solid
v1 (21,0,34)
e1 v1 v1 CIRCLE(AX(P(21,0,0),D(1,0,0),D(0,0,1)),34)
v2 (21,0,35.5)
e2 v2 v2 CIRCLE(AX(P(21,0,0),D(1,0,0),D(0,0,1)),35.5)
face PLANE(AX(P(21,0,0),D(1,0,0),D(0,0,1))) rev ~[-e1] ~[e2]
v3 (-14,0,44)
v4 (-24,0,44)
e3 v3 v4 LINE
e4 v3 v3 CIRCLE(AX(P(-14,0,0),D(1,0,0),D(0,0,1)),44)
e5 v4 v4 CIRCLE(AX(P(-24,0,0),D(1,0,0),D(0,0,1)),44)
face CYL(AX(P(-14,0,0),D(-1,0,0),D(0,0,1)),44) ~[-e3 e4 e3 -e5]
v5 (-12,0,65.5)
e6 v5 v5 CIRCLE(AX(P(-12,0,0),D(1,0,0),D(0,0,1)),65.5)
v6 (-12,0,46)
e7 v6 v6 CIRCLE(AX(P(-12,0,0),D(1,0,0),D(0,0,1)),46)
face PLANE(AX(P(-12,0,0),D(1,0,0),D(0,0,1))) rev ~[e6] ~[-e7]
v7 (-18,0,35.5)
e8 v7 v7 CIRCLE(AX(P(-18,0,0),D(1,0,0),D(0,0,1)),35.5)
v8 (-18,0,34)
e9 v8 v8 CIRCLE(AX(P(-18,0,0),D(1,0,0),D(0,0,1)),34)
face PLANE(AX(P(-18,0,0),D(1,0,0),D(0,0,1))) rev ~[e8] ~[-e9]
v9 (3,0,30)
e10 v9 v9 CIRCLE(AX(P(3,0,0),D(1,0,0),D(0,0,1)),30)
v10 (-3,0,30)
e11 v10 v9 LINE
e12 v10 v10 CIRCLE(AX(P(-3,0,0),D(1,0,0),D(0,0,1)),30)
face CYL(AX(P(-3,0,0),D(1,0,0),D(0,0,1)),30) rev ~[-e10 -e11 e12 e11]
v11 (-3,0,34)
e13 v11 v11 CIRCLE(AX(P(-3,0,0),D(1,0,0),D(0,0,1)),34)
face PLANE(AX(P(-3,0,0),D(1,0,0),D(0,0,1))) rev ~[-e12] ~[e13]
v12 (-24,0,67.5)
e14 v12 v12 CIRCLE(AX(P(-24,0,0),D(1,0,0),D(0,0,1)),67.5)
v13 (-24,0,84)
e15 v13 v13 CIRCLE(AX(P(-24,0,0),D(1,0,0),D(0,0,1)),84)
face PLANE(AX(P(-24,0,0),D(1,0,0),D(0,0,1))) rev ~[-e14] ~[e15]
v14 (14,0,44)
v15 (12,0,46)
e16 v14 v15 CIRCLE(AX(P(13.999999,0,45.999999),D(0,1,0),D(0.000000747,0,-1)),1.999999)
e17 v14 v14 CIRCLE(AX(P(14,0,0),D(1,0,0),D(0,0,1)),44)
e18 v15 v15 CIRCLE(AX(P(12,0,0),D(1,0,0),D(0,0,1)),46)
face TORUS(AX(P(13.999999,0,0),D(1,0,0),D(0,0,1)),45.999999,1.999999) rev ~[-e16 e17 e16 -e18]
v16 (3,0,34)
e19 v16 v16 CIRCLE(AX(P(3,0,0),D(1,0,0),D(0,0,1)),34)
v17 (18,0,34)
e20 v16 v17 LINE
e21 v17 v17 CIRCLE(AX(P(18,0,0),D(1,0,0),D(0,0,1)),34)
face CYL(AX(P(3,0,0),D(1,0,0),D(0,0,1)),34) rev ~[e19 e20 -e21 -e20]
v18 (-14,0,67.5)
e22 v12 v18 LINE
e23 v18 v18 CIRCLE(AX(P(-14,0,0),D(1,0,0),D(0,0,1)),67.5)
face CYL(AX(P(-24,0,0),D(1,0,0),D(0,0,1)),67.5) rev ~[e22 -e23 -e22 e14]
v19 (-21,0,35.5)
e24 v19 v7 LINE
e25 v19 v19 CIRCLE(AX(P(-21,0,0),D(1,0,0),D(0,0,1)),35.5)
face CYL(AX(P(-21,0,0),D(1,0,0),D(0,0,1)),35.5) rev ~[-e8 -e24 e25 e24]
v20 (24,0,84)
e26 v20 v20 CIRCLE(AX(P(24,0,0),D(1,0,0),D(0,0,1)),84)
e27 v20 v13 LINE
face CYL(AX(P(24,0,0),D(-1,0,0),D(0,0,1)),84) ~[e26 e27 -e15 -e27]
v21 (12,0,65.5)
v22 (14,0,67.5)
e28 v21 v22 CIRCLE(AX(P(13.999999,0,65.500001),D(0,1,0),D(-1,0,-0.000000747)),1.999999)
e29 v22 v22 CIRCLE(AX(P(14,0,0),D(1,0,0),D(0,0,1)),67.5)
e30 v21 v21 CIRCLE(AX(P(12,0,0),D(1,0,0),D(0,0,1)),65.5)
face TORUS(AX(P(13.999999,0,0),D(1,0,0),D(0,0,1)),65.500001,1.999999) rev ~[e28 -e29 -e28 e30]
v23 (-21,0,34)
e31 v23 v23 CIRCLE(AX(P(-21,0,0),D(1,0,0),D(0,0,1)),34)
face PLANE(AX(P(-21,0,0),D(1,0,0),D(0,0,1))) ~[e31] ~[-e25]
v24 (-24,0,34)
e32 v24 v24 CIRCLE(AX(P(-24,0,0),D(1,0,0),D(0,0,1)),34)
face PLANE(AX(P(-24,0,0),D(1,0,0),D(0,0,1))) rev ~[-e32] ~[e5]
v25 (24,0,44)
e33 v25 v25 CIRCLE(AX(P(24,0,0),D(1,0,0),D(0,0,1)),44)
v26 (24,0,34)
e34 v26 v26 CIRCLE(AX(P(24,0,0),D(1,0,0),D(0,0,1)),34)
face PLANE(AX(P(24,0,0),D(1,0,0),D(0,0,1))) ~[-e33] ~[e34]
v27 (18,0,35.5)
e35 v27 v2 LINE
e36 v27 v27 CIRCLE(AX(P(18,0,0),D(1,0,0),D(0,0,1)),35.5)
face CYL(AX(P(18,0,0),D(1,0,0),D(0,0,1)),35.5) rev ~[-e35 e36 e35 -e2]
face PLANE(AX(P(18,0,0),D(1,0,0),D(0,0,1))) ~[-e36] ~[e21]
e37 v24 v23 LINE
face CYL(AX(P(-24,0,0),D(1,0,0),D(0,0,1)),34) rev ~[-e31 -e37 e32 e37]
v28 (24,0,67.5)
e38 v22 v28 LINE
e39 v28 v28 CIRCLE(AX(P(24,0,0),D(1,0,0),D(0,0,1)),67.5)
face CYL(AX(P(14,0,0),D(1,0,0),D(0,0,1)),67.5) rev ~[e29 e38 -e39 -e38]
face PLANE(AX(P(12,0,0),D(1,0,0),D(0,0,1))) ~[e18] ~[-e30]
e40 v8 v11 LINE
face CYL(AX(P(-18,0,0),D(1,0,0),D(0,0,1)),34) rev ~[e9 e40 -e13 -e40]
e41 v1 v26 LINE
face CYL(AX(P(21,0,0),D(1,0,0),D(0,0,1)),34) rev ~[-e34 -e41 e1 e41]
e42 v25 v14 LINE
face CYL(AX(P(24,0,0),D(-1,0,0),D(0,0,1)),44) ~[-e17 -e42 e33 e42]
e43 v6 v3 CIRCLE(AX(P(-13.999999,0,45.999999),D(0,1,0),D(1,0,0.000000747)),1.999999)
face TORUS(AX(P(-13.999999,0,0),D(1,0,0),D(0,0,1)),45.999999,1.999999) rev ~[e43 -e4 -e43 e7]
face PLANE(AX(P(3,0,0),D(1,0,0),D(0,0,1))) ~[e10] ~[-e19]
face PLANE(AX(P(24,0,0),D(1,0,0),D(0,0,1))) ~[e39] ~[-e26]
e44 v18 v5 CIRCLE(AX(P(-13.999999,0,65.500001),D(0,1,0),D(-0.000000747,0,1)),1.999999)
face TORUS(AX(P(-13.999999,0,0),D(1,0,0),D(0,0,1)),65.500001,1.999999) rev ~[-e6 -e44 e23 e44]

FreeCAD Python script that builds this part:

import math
import FreeCAD as App
import Part
import Sketcher
Q = App.Units.Quantity

doc = App.newDocument("Part")
params = doc.addObject("Spreadsheet::Sheet", "Params")
for row, (alias, value) in enumerate([
    ("sketch1_radius", "1.999999 mm"),
    ("sketch1_width", "48 mm"),
    ("sketch1_width2", "10 mm"),
    ("sketch1_width3", "3 mm"),
    ("sketch1_width4", "15 mm"),
    ("revolution_angle", "360 deg"),
], start=1):
    params.set(f"A{row}", alias)
    params.set(f"B{row}", "=" + value)
    params.setAlias(f"B{row}", alias)

body = doc.addObject("PartDesign::Body", "Body")

sketch1 = doc.addObject("Sketcher::SketchObject", "Sketch")
body.addObject(sketch1)
sketch1.AttachmentSupport = (doc.XZ_Plane, [""])
sketch1.MapMode = "FlatFace"
sketch1.addGeometry([
    Part.LineSegment(App.Vector(24, 84, 0), App.Vector(-24, 84, 0)),
    Part.LineSegment(App.Vector(-24, 84, 0), App.Vector(-24, 67.5, 0)),
    Part.LineSegment(App.Vector(-24, 67.5, 0), App.Vector(-14, 67.5, 0)),
    Part.ArcOfCircle(Part.Circle(App.Vector(-14, 65.5, 0), App.Vector(0, 0, 1), 2), math.radians(0), math.radians(90)),
    Part.LineSegment(App.Vector(-12, 65.5, 0), App.Vector(-12, 46, 0)),
    Part.ArcOfCircle(Part.Circle(App.Vector(-14, 46, 0), App.Vector(0, 0, 1), 2), math.radians(-90), math.radians(0)),
    Part.LineSegment(App.Vector(-14, 44, 0), App.Vector(-24, 44, 0)),
    Part.LineSegment(App.Vector(-24, 44, 0), App.Vector(-24, 34, 0)),
    Part.LineSegment(App.Vector(-24, 34, 0), App.Vector(-21, 34, 0)),
    Part.LineSegment(App.Vector(-21, 34, 0), App.Vector(-21, 35.5, 0)),
    Part.LineSegment(App.Vector(-21, 35.5, 0), App.Vector(-18, 35.5, 0)),
    Part.LineSegment(App.Vector(-18, 35.5, 0), App.Vector(-18, 34, 0)),
    Part.LineSegment(App.Vector(-18, 34, 0), App.Vector(-3, 34, 0)),
    Part.LineSegment(App.Vector(-3, 34, 0), App.Vector(-3, 30, 0)),
    Part.LineSegment(App.Vector(-3, 30, 0), App.Vector(3, 30, 0)),
    Part.LineSegment(App.Vector(3, 30, 0), App.Vector(3, 34, 0)),
    Part.LineSegment(App.Vector(3, 34, 0), App.Vector(18, 34, 0)),
    Part.LineSegment(App.Vector(18, 34, 0), App.Vector(18, 35.5, 0)),
    Part.LineSegment(App.Vector(18, 35.5, 0), App.Vector(21, 35.5, 0)),
    Part.LineSegment(App.Vector(21, 35.5, 0), App.Vector(21, 34, 0)),
    Part.LineSegment(App.Vector(21, 34, 0), App.Vector(24, 34, 0)),
    Part.LineSegment(App.Vector(24, 34, 0), App.Vector(24, 44, 0)),
    Part.LineSegment(App.Vector(24, 44, 0), App.Vector(14, 44, 0)),
    Part.ArcOfCircle(Part.Circle(App.Vector(14, 46, 0), App.Vector(0, 0, 1), 2), math.radians(180), math.radians(270)),
    Part.LineSegment(App.Vector(12, 46, 0), App.Vector(12, 65.5, 0)),
    Part.ArcOfCircle(Part.Circle(App.Vector(14, 65.5, 0), App.Vector(0, 0, 1), 2), math.radians(90), math.radians(180)),
    Part.LineSegment(App.Vector(14, 67.5, 0), App.Vector(24, 67.5, 0)),
    Part.LineSegment(App.Vector(24, 67.5, 0), App.Vector(24, 84, 0)),
], False)
sketch1.addConstraint([
    Sketcher.Constraint("Coincident", 0, 2, 1, 1),
    Sketcher.Constraint("Coincident", 1, 2, 2, 1),
    Sketcher.Constraint("Tangent", 2, 2, 3, 2),
    Sketcher.Constraint("Tangent", 3, 1, 4, 1),
    Sketcher.Constraint("Tangent", 4, 2, 5, 2),
    Sketcher.Constraint("Tangent", 5, 1, 6, 1),
    Sketcher.Constraint("Coincident", 6, 2, 7, 1),
    Sketcher.Constraint("Coincident", 7, 2, 8, 1),
    Sketcher.Constraint("Coincident", 8, 2, 9, 1),
    Sketcher.Constraint("Coincident", 9, 2, 10, 1),
    Sketcher.Constraint("Coincident", 10, 2, 11, 1),
    Sketcher.Constraint("Coincident", 11, 2, 12, 1),
    Sketcher.Constraint("Coincident", 12, 2, 13, 1),
    Sketcher.Constraint("Coincident", 13, 2, 14, 1),
    Sketcher.Constraint("Coincident", 14, 2, 15, 1),
    Sketcher.Constraint("Coincident", 15, 2, 16, 1),
    Sketcher.Constraint("Coincident", 16, 2, 17, 1),
    Sketcher.Constraint("Coincident", 17, 2, 18, 1),
    Sketcher.Constraint("Coincident", 18, 2, 19, 1),
    Sketcher.Constraint("Coincident", 19, 2, 20, 1),
    Sketcher.Constraint("Coincident", 20, 2, 21, 1),
    Sketcher.Constraint("Coincident", 21, 2, 22, 1),
    Sketcher.Constraint("Tangent", 22, 2, 23, 2),
    Sketcher.Constraint("Tangent", 23, 1, 24, 1),
    Sketcher.Constraint("Tangent", 24, 2, 25, 2),
    Sketcher.Constraint("Tangent", 25, 1, 26, 1),
    Sketcher.Constraint("Coincident", 26, 2, 27, 1),
    Sketcher.Constraint("Coincident", 27, 2, 0, 1),
    Sketcher.Constraint("Horizontal", 0),
    Sketcher.Constraint("Vertical", 1),
    Sketcher.Constraint("Horizontal", 2),
    Sketcher.Constraint("Vertical", 4),
    Sketcher.Constraint("Horizontal", 6),
    Sketcher.Constraint("Vertical", 7),
    Sketcher.Constraint("Horizontal", 8),
    Sketcher.Constraint("Vertical", 9),
    Sketcher.Constraint("Horizontal", 10),
    Sketcher.Constraint("Vertical", 11),
    Sketcher.Constraint("Horizontal", 12),
    Sketcher.Constraint("Vertical", 13),
    Sketcher.Constraint("Horizontal", 14),
    Sketcher.Constraint("Vertical", 15),
    Sketcher.Constraint("Horizontal", 16),
    Sketcher.Constraint("Vertical", 17),
    Sketcher.Constraint("Horizontal", 18),
    Sketcher.Constraint("Vertical", 19),
    Sketcher.Constraint("Horizontal", 20),
    Sketcher.Constraint("Vertical", 21),
    Sketcher.Constraint("Horizontal", 22),
    Sketcher.Constraint("Vertical", 24),
    Sketcher.Constraint("Horizontal", 26),
    Sketcher.Constraint("Vertical", 27),
    Sketcher.Constraint("Equal", 3, 5),
    Sketcher.Constraint("Equal", 5, 23),
    Sketcher.Constraint("Equal", 23, 25),
    Sketcher.Constraint("Symmetric", 5, 3, 23, 3, -2),
    Sketcher.Constraint("Symmetric", 12, 2, 15, 2, -2),
    Sketcher.Constraint("Symmetric", 10, 2, 17, 2, -2),
    Sketcher.Constraint("Symmetric", 8, 2, 19, 2, -2),
    Sketcher.Constraint("Symmetric", 1, 2, 26, 2, -2),
    Sketcher.Constraint("Horizontal", 8, 2, 11, 2),
    Sketcher.Constraint("Vertical", 1, 2, 6, 2),
    Sketcher.Constraint("Vertical", 21, 2, 26, 2),
    Sketcher.Constraint("Equal", 8, 10),
    Sketcher.Constraint("Equal", 26, 7),
    Sketcher.Constraint("Radius", 3, Q("1.999999 mm")),
    Sketcher.Constraint("DistanceX", 0, 2, 0, 1, Q("48 mm")),
    Sketcher.Constraint("DistanceX", 2, 1, 2, 2, Q("10 mm")),
    Sketcher.Constraint("DistanceX", 8, 1, 8, 2, Q("3 mm")),
    Sketcher.Constraint("DistanceX", 12, 1, 12, 2, Q("15 mm")),
    Sketcher.Constraint("DistanceY", 13, 2, 13, 1, Q("4 mm")),
    Sketcher.Constraint("DistanceY", 1, 2, 1, 1, Q("16.5 mm")),
    Sketcher.Constraint("DistanceY", 4, 2, 4, 1, Q("19.5 mm")),
    Sketcher.Constraint("DistanceY", 9, 1, 9, 2, Q("1.5 mm")),
    Sketcher.Constraint("DistanceY", -1, 1, 5, 3, Q("45.999999 mm")),
])
sketch1.setExpression("Constraints[65]", "Params.sketch1_radius")
sketch1.setExpression("Constraints[66]", "Params.sketch1_width")
sketch1.setExpression("Constraints[67]", "Params.sketch1_width2")
sketch1.setExpression("Constraints[68]", "Params.sketch1_width3")
sketch1.setExpression("Constraints[69]", "Params.sketch1_width4")
revolution = doc.addObject("PartDesign::Revolution", "Revolution")
body.addObject(revolution)
revolution.Profile = sketch1
revolution.ReferenceAxis = (sketch1, ["H_Axis"])
revolution.setExpression("Angle", "Params.revolution_angle")

doc.recompute()
